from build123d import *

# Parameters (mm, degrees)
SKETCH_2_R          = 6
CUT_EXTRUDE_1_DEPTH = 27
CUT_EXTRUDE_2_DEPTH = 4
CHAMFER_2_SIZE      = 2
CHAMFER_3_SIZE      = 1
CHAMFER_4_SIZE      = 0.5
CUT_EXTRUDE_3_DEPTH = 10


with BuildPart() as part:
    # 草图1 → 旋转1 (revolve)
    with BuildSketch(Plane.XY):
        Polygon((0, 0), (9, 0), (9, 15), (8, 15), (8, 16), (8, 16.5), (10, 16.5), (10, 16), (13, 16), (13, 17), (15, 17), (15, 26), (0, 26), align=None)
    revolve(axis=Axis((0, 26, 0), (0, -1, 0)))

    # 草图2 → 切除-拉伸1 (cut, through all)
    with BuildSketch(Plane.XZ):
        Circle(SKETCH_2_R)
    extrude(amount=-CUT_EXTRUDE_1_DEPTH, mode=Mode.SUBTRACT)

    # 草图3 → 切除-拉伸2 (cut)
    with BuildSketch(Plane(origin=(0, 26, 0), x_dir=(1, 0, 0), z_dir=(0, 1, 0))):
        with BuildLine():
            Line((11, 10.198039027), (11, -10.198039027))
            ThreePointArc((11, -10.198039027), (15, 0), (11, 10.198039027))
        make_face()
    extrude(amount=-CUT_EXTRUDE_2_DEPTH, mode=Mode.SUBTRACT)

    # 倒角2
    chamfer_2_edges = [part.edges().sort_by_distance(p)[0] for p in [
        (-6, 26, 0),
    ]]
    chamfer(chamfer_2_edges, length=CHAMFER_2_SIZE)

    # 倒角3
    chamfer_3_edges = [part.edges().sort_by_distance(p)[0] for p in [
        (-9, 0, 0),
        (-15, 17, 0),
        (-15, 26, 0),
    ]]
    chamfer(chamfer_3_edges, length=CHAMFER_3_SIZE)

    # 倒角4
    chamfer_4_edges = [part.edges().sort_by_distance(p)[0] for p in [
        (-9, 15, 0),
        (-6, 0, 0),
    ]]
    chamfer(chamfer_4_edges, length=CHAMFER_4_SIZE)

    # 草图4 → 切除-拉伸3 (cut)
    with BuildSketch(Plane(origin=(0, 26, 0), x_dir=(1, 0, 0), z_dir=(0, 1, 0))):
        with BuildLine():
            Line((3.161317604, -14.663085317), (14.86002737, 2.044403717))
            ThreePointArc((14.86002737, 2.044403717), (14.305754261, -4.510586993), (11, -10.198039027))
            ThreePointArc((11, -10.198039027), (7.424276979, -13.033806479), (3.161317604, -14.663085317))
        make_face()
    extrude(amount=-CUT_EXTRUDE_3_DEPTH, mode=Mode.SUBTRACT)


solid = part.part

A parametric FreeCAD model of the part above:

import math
import FreeCAD as App
import Part
import Sketcher
Q = App.Units.Quantity


def edges_at(feature, points):
    """Names of the edges that pass closest to the given points."""
    edges = feature.Shape.Edges
    near = lambda p: min(range(len(edges)), key=lambda i: edges[i].distToShape(Part.Vertex(*p))[0])
    return sorted({f"Edge{near(p) + 1}" for p in points})

doc = App.newDocument("Part")
body = doc.addObject("PartDesign::Body", "Body")

# Sketch on XY plane
sketch1 = doc.addObject("Sketcher::SketchObject", "Sketch")
body.addObject(sketch1)
sketch1.AttachmentSupport = (doc.XY_Plane, [""])
sketch1.MapMode = "FlatFace"
sketch1.addGeometry(Part.LineSegment(App.Vector(0, 0, 0), App.Vector(9, 0, 0)), False)
sketch1.addGeometry(Part.LineSegment(App.Vector(9, 0, 0), App.Vector(9, 15, 0)), False)
sketch1.addGeometry(Part.LineSegment(App.Vector(9, 15, 0), App.Vector(8, 15, 0)), False)
sketch1.addGeometry(Part.LineSegment(App.Vector(8, 15, 0), App.Vector(8, 16.5, 0)), False)
sketch1.addGeometry(Part.LineSegment(App.Vector(8, 16.5, 0), App.Vector(10, 16.5, 0)), False)
sketch1.addGeometry(Part.LineSegment(App.Vector(10, 16.5, 0), App.Vector(10, 16, 0)), False)
sketch1.addGeometry(Part.LineSegment(App.Vector(10, 16, 0), App.Vector(13, 16, 0)), False)
sketch1.addGeometry(Part.LineSegment(App.Vector(13, 16, 0), App.Vector(13, 17, 0)), False)
sketch1.addGeometry(Part.LineSegment(App.Vector(13, 17, 0), App.Vector(15, 17, 0)), False)
sketch1.addGeometry(Part.LineSegment(App.Vector(15, 17, 0), App.Vector(15, 26, 0)), False)
sketch1.addGeometry(Part.LineSegment(App.Vector(15, 26, 0), App.Vector(0, 26, 0)), False)
sketch1.addGeometry(Part.LineSegment(App.Vector(0, 26, 0), App.Vector(0, 0, 0)), False)
sketch1.addConstraint(Sketcher.Constraint("Coincident", 0, 2, 1, 1))
sketch1.addConstraint(Sketcher.Constraint("Coincident", 1, 2, 2, 1))
sketch1.addConstraint(Sketcher.Constraint("Coincident", 2, 2, 3, 1))
sketch1.addConstraint(Sketcher.Constraint("Coincident", 3, 2, 4, 1))
sketch1.addConstraint(Sketcher.Constraint("Coincident", 4, 2, 5, 1))
sketch1.addConstraint(Sketcher.Constraint("Coincident", 5, 2, 6, 1))
sketch1.addConstraint(Sketcher.Constraint("Coincident", 6, 2, 7, 1))
sketch1.addConstraint(Sketcher.Constraint("Coincident", 7, 2, 8, 1))
sketch1.addConstraint(Sketcher.Constraint("Coincident", 8, 2, 9, 1))
sketch1.addConstraint(Sketcher.Constraint("Coincident", 9, 2, 10, 1))
sketch1.addConstraint(Sketcher.Constraint("Coincident", 10, 2, 11, 1))
sketch1.addConstraint(Sketcher.Constraint("Coincident", 11, 2, 0, 1))
sketch1.addConstraint(Sketcher.Constraint("Horizontal", 0))
sketch1.addConstraint(Sketcher.Constraint("Vertical", 1))
sketch1.addConstraint(Sketcher.Constraint("Horizontal", 2))
sketch1.addConstraint(Sketcher.Constraint("Vertical", 3))
sketch1.addConstraint(Sketcher.Constraint("Horizontal", 4))
sketch1.addConstraint(Sketcher.Constraint("Vertical", 5))
sketch1.addConstraint(Sketcher.Constraint("Horizontal", 6))
sketch1.addConstraint(Sketcher.Constraint("Vertical", 7))
sketch1.addConstraint(Sketcher.Constraint("Horizontal", 8))
sketch1.addConstraint(Sketcher.Constraint("Vertical", 9))
sketch1.addConstraint(Sketcher.Constraint("Horizontal", 10))
sketch1.addConstraint(Sketcher.Constraint("Vertical", 11))
sketch1.addConstraint(Sketcher.Constraint("Coincident", 11, 2, -1, 1))
sketch1.addConstraint(Sketcher.Constraint("Equal", 4, 8))
sketch1.addConstraint(Sketcher.Constraint("Equal", 10, 1))
sketch1.addConstraint(Sketcher.Constraint("Equal", 2, 7))
sketch1.addConstraint(Sketcher.Constraint("Equal", 0, 9))
sketch1.addConstraint(Sketcher.Constraint("DistanceX", 0, 1, 0, 2, Q("9 mm")))
sketch1.addConstraint(Sketcher.Constraint("DistanceX", 2, 2, 2, 1, Q("1 mm")))
sketch1.addConstraint(Sketcher.Constraint("DistanceX", 4, 1, 4, 2, Q("2 mm")))
sketch1.addConstraint(Sketcher.Constraint("DistanceX", 6, 1, 6, 2, Q("3 mm")))
sketch1.addConstraint(Sketcher.Constraint("DistanceY", 11, 2, 11, 1, Q("26 mm")))
sketch1.addConstraint(Sketcher.Constraint("DistanceY", 3, 1, 3, 2, Q("1.5 mm")))
revolution = doc.addObject("PartDesign::Revolution", "Revolution")
body.addObject(revolution)
revolution.Profile = sketch1
revolution.ReferenceAxis = (sketch1, ["V_Axis"])
revolution.Angle = 360

# Sketch on XZ plane
sketch2 = doc.addObject("Sketcher::SketchObject", "Sketch001")
body.addObject(sketch2)
sketch2.AttachmentSupport = (doc.XZ_Plane, [""])
sketch2.MapMode = "FlatFace"
sketch2.addGeometry(Part.Circle(App.Vector(0, 0, 0), App.Vector(0, 0, 1), 6), False)
sketch2.addConstraint(Sketcher.Constraint("Coincident", 0, 3, -1, 1))
sketch2.addConstraint(Sketcher.Constraint("Diameter", 0, Q("12 mm")))
pocket1 = doc.addObject("PartDesign::Pocket", "Pocket")
body.addObject(pocket1)
pocket1.Profile = sketch2
pocket1.Type = "ThroughAll"

# Sketch on XZ plane
sketch3 = doc.addObject("Sketcher::SketchObject", "Sketch002")
body.addObject(sketch3)
sketch3.AttachmentSupport = (doc.XZ_Plane, [""])
sketch3.MapMode = "FlatFace"
sketch3.AttachmentOffset = App.Placement(App.Vector(0, 0, -26), App.Rotation())
sketch3.addGeometry(Part.LineSegment(App.Vector(11, -10.198039, 0), App.Vector(11, 10.198039, 0)), False)
sketch3.addGeometry(Part.ArcOfCircle(Part.Circle(App.Vector(0, 0, 0), App.Vector(0, 0, 1), 15), math.radians(-42.833428), math.radians(42.833428)), False)
sketch3.addConstraint(Sketcher.Constraint("Coincident", 0, 1, 1, 1))
sketch3.addConstraint(Sketcher.Constraint("Coincident", 1, 2, 0, 2))
sketch3.addConstraint(Sketcher.Constraint("Vertical", 0))
sketch3.addConstraint(Sketcher.Constraint("Coincident", 1, 3, -1, 1))
sketch3.addConstraint(Sketcher.Constraint("Radius", 1, Q("15 mm")))
sketch3.addConstraint(Sketcher.Constraint("DistanceX", -1, 1, 0, 1, Q("11 mm")))
pocket2 = doc.addObject("PartDesign::Pocket", "Pocket001")
body.addObject(pocket2)
pocket2.Profile = sketch3
pocket2.Length = 4
pocket2.Reversed = True
doc.recompute()

chamfer = doc.addObject("PartDesign::Chamfer", "Chamfer")
body.addObject(chamfer)
chamfer.Base = (pocket2, edges_at(pocket2, [(-6, 26, 0)]))
chamfer.Size = 2
doc.recompute()

chamfer2 = doc.addObject("PartDesign::Chamfer", "Chamfer001")
body.addObject(chamfer2)
chamfer2.Base = (chamfer, edges_at(chamfer, [(-9, 0, 0), (-15, 17, 0), (-15, 26, 0)]))
chamfer2.Size = 1
doc.recompute()

chamfer3 = doc.addObject("PartDesign::Chamfer", "Chamfer002")
body.addObject(chamfer3)
chamfer3.Base = (chamfer2, edges_at(chamfer2, [(-9, 15, 0), (-6, 0, 0)]))
chamfer3.Size = 0.5

# Sketch on XZ plane
sketch4 = doc.addObject("Sketcher::SketchObject", "Sketch003")
body.addObject(sketch4)
sketch4.AttachmentSupport = (doc.XZ_Plane, [""])
sketch4.MapMode = "FlatFace"
sketch4.AttachmentOffset = App.Placement(App.Vector(0, 0, -26), App.Rotation())
sketch4.addGeometry(Part.LineSegment(App.Vector(14.860027, -2.044404, 0), App.Vector(3.161318, 14.663085, 0)), False)
sketch4.addGeometry(Part.ArcOfCircle(Part.Circle(App.Vector(0, 0, 0), App.Vector(0, 0, 1), 15), math.radians(42.833428), math.radians(77.833428)), False)
sketch4.addGeometry(Part.ArcOfCircle(Part.Circle(App.Vector(0, 0, 0), App.Vector(0, 0, 1), 15), math.radians(-7.833428), math.radians(42.833428)), False)
sketch4.addConstraint(Sketcher.Constraint("Coincident", 0, 2, 1, 2))
sketch4.addConstraint(Sketcher.Constraint("Tangent", 1, 1, 2, 2))
sketch4.addConstraint(Sketcher.Constraint("Coincident", 2, 1, 0, 1))
sketch4.addConstraint(Sketcher.Constraint("Coincident", 1, 3, -1, 1))
sketch4.addConstraint(Sketcher.Constraint("Equal", 1, 2))
sketch4.addConstraint(Sketcher.Constraint("Radius", 1, Q("15 mm")))
sketch4.addConstraint(Sketcher.Constraint("Angle", 0, Q("125 deg")))
sketch4.addConstraint(Sketcher.Constraint("DistanceX", -1, 1, 1, 1, Q("11 mm")))
sketch4.addConstraint(Sketcher.Constraint("Distance", 0, Q("20.396078 mm")))
pocket3 = doc.addObject("PartDesign::Pocket", "Pocket002")
body.addObject(pocket3)
pocket3.Profile = sketch4
pocket3.Length = 10
pocket3.Reversed = True

doc.recompute()
